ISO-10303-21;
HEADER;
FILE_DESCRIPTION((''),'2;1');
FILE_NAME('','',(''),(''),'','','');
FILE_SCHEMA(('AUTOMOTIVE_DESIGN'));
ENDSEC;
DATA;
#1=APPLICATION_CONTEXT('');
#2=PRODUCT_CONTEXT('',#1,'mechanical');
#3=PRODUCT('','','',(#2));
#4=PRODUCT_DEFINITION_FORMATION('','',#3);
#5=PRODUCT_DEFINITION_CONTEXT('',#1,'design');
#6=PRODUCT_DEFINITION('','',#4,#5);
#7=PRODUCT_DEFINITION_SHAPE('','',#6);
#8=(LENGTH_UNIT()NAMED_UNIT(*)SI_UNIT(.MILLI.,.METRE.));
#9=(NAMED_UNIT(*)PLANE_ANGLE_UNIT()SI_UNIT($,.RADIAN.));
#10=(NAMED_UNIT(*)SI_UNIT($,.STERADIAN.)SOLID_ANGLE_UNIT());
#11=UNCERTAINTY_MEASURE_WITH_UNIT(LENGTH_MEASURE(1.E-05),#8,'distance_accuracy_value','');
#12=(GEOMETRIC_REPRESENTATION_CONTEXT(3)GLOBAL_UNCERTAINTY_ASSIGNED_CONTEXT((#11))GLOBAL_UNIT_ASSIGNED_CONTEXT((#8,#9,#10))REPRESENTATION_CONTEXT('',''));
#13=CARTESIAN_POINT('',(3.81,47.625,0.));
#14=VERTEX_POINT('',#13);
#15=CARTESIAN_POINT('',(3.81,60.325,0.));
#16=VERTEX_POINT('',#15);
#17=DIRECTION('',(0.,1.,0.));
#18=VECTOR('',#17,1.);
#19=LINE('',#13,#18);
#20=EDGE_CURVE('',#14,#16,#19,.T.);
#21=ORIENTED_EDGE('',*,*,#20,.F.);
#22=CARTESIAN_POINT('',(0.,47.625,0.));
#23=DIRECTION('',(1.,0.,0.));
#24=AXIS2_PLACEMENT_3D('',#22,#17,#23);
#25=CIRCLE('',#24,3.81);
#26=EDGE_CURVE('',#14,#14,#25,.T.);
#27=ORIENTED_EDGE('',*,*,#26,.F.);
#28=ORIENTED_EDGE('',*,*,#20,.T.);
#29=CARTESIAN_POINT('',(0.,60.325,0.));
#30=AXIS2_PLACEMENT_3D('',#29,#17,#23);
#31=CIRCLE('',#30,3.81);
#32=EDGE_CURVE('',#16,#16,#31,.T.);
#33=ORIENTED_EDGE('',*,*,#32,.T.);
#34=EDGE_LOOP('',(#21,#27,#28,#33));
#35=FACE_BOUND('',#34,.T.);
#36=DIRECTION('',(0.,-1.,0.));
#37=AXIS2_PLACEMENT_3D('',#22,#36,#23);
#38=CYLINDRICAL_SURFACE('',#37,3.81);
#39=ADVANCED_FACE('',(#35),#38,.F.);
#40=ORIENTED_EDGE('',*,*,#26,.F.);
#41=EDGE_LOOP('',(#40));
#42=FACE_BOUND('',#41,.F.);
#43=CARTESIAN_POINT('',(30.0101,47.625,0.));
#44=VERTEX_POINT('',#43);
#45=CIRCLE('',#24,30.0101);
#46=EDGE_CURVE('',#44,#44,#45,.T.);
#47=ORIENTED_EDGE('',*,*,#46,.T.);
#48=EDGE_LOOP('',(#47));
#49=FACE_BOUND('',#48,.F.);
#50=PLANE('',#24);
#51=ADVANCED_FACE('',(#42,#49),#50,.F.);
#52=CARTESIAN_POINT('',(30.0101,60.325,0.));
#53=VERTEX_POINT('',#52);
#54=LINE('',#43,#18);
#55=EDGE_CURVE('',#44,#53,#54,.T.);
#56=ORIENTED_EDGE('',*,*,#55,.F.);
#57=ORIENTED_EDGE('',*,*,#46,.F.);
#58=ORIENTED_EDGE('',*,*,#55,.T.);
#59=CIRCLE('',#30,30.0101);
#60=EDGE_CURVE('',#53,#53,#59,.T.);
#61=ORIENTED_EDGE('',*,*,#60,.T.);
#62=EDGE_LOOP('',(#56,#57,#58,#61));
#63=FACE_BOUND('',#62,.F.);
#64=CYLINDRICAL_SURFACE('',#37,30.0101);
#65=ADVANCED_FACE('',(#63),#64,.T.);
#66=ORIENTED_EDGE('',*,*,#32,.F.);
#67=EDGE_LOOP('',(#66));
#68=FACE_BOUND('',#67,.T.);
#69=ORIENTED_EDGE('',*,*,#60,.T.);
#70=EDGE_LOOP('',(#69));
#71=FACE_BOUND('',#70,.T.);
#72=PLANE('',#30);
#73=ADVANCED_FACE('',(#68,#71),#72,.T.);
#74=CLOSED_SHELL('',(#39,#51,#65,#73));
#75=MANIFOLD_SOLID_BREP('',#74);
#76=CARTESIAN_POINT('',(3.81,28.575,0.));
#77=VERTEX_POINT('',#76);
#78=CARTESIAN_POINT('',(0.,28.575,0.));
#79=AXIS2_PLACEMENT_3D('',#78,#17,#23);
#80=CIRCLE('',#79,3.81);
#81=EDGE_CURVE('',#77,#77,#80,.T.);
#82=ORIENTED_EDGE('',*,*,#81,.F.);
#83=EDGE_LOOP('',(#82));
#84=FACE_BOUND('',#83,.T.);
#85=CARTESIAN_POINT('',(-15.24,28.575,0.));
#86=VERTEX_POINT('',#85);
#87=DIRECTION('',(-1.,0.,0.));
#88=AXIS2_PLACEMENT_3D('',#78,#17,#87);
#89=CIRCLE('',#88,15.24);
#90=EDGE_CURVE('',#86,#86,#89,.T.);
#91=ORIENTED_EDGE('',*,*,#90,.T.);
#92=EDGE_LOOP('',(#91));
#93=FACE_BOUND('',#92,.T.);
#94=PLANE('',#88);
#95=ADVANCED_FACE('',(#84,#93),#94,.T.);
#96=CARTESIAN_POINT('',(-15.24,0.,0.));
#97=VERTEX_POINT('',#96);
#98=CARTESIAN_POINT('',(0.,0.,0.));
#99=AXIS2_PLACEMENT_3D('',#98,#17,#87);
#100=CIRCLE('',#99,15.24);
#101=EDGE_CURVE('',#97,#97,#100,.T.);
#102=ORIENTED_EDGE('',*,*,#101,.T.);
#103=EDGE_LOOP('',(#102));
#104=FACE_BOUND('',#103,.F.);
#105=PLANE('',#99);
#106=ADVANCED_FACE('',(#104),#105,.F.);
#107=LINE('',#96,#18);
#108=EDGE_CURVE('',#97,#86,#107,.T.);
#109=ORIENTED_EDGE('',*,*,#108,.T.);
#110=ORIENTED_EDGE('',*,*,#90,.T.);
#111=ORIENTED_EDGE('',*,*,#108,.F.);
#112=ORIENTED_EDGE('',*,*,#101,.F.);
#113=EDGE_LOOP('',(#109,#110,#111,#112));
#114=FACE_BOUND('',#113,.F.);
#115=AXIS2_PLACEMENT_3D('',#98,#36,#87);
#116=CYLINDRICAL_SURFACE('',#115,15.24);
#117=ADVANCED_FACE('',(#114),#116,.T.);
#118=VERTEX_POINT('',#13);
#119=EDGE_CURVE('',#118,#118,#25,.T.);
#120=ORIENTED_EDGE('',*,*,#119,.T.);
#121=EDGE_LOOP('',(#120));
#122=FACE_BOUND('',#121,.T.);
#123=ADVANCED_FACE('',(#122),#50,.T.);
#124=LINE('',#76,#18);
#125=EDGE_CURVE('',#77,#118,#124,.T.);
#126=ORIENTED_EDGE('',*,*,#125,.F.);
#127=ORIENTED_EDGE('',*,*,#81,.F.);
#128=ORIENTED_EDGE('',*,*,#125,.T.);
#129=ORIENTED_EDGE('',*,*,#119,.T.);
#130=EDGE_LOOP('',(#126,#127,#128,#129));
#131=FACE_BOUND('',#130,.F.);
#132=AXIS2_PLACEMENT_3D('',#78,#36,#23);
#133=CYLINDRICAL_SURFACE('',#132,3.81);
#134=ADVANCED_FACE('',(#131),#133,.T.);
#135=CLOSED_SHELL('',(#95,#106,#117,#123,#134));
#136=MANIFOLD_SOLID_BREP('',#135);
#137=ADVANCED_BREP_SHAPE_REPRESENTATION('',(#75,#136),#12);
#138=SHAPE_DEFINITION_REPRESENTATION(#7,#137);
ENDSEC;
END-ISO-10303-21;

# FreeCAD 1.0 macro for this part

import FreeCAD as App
import Part
import Sketcher

V = App.Vector
Q = App.Units.Quantity

doc = App.newDocument("Part")
body = doc.addObject("PartDesign::Body", "Body")
body.AllowCompound = True

sketch1 = body.newObject("Sketcher::SketchObject", "Sketch")
sketch1.AttachmentSupport = (doc.getObject("XZ_Plane"), [""])
sketch1.MapMode = "FlatFace"
sketch1.addGeometry(Part.Circle(V(0, 0, 0), V(0, 0, 1), 15), False)
sketch1.addConstraint(Sketcher.Constraint("Coincident", 0, 3, -1, 1))
sketch1.addConstraint(Sketcher.Constraint("Diameter", 0, Q("1.2 in")))
pad1 = body.newObject("PartDesign::Pad", "Pad")
pad1.Profile = sketch1
pad1.Length = Q("1.125 in")
pad1.Reversed = True

sketch2 = body.newObject("Sketcher::SketchObject", "Sketch001")
sketch2.AttachmentSupport = (doc.getObject("XZ_Plane"), [""])
sketch2.MapMode = "FlatFace"
sketch2.AttachmentOffset = App.Placement(V(0, 0, -1.125 * 25.4), App.Rotation())
sketch2.addGeometry(Part.Circle(V(0, 0, 0), V(0, 0, 1), 3.8), False)
sketch2.addConstraint(Sketcher.Constraint("Coincident", 0, 3, -1, 1))
sketch2.addConstraint(Sketcher.Constraint("Diameter", 0, Q("0.3 in")))
pad2 = body.newObject("PartDesign::Pad", "Pad001")
pad2.Profile = sketch2
pad2.Length = Q("0.75 in")
pad2.Reversed = True

sketch3 = body.newObject("Sketcher::SketchObject", "Sketch002")
sketch3.AttachmentSupport = (doc.getObject("XZ_Plane"), [""])
sketch3.MapMode = "FlatFace"
sketch3.AttachmentOffset = App.Placement(V(0, 0, -1.875 * 25.4), App.Rotation())
sketch3.addGeometry(Part.Circle(V(0, 0, 0), V(0, 0, 1), 30), False)
sketch3.addGeometry(Part.Circle(V(0, 0, 0), V(0, 0, 1), 3.8), False)
sketch3.addConstraint(Sketcher.Constraint("Coincident", 0, 3, -1, 1))
sketch3.addConstraint(Sketcher.Constraint("Coincident", 1, 3, -1, 1))
sketch3.addConstraint(Sketcher.Constraint("Diameter", 0, Q("2.363 in")))
sketch3.addConstraint(Sketcher.Constraint("Diameter", 1, Q("0.3 in")))
pad3 = body.newObject("PartDesign::Pad", "Pad002")
pad3.Profile = sketch3
pad3.Length = Q("0.5 in")
pad3.Reversed = True

doc.recompute()
